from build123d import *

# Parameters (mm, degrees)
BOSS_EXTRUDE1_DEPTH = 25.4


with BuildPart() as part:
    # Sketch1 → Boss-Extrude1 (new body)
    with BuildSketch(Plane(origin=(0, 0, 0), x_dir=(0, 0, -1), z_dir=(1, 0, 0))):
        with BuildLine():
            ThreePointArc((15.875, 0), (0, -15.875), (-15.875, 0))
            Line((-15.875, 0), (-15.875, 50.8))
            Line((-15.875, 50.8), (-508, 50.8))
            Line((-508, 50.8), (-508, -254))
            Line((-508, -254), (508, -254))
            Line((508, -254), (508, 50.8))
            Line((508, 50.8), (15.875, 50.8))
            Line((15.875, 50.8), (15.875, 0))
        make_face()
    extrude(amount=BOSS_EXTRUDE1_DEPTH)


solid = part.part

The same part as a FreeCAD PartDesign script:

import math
import FreeCAD as App
import Part
import Sketcher
Q = App.Units.Quantity

doc = App.newDocument("Part")
body = doc.addObject("PartDesign::Body", "Body")

# Sketch on YZ plane
sketch1 = body.newObject("Sketcher::SketchObject", "Sketch")
sketch1.AttachmentSupport = (doc.getObject("YZ_Plane"), [""])
sketch1.MapMode = "FlatFace"
sketch1.addGeometry([
    Part.ArcOfCircle(Part.Circle(App.Vector(0, 0, 0), App.Vector(0, 0, 1), 16), math.radians(90), math.radians(270)),  # 0
    Part.LineSegment(App.Vector(0, 16, 0), App.Vector(51, 16, 0)),  # 1
    Part.LineSegment(App.Vector(51, 16, 0), App.Vector(51, 508, 0)),  # 2
    Part.LineSegment(App.Vector(51, 508, 0), App.Vector(-254, 508, 0)),  # 3
    Part.LineSegment(App.Vector(-254, 508, 0), App.Vector(-254, -508, 0)),  # 4
    Part.LineSegment(App.Vector(-254, -508, 0), App.Vector(51, -508, 0)),  # 5
    Part.LineSegment(App.Vector(51, -508, 0), App.Vector(51, -16, 0)),  # 6
    Part.LineSegment(App.Vector(51, -16, 0), App.Vector(0, -16, 0)),  # 7
], False)
sketch1.addConstraint([
    Sketcher.Constraint("Tangent", 0, 1, 1, 1),
    Sketcher.Constraint("Coincident", 1, 2, 2, 1),
    Sketcher.Constraint("Coincident", 2, 2, 3, 1),
    Sketcher.Constraint("Coincident", 3, 2, 4, 1),
    Sketcher.Constraint("Coincident", 4, 2, 5, 1),
    Sketcher.Constraint("Coincident", 5, 2, 6, 1),
    Sketcher.Constraint("Coincident", 6, 2, 7, 1),
    Sketcher.Constraint("Tangent", 7, 2, 0, 2),
    Sketcher.Constraint("Horizontal", 1),
    Sketcher.Constraint("Vertical", 2),
    Sketcher.Constraint("Horizontal", 3),
    Sketcher.Constraint("Vertical", 4),
    Sketcher.Constraint("Horizontal", 5),
    Sketcher.Constraint("Vertical", 6),
    Sketcher.Constraint("Horizontal", 7),
    Sketcher.Constraint("Coincident", 0, 3, -1, 1),
    Sketcher.Constraint("Symmetric", 2, 2, 5, 2, -1),
    Sketcher.Constraint("DistanceX", 1, 1, 1, 2, Q("2 in")),
    Sketcher.Constraint("DistanceX", 3, 2, 3, 1, Q("12 in")),
    Sketcher.Constraint("DistanceY", 4, 2, 4, 1, Q("40 in")),
    Sketcher.Constraint("Radius", 0, Q("0.625 in")),
])
pad1 = body.newObject("PartDesign::Pad", "Pad")
pad1.Profile = sketch1
pad1.Length = Q("1 in")

doc.recompute()
